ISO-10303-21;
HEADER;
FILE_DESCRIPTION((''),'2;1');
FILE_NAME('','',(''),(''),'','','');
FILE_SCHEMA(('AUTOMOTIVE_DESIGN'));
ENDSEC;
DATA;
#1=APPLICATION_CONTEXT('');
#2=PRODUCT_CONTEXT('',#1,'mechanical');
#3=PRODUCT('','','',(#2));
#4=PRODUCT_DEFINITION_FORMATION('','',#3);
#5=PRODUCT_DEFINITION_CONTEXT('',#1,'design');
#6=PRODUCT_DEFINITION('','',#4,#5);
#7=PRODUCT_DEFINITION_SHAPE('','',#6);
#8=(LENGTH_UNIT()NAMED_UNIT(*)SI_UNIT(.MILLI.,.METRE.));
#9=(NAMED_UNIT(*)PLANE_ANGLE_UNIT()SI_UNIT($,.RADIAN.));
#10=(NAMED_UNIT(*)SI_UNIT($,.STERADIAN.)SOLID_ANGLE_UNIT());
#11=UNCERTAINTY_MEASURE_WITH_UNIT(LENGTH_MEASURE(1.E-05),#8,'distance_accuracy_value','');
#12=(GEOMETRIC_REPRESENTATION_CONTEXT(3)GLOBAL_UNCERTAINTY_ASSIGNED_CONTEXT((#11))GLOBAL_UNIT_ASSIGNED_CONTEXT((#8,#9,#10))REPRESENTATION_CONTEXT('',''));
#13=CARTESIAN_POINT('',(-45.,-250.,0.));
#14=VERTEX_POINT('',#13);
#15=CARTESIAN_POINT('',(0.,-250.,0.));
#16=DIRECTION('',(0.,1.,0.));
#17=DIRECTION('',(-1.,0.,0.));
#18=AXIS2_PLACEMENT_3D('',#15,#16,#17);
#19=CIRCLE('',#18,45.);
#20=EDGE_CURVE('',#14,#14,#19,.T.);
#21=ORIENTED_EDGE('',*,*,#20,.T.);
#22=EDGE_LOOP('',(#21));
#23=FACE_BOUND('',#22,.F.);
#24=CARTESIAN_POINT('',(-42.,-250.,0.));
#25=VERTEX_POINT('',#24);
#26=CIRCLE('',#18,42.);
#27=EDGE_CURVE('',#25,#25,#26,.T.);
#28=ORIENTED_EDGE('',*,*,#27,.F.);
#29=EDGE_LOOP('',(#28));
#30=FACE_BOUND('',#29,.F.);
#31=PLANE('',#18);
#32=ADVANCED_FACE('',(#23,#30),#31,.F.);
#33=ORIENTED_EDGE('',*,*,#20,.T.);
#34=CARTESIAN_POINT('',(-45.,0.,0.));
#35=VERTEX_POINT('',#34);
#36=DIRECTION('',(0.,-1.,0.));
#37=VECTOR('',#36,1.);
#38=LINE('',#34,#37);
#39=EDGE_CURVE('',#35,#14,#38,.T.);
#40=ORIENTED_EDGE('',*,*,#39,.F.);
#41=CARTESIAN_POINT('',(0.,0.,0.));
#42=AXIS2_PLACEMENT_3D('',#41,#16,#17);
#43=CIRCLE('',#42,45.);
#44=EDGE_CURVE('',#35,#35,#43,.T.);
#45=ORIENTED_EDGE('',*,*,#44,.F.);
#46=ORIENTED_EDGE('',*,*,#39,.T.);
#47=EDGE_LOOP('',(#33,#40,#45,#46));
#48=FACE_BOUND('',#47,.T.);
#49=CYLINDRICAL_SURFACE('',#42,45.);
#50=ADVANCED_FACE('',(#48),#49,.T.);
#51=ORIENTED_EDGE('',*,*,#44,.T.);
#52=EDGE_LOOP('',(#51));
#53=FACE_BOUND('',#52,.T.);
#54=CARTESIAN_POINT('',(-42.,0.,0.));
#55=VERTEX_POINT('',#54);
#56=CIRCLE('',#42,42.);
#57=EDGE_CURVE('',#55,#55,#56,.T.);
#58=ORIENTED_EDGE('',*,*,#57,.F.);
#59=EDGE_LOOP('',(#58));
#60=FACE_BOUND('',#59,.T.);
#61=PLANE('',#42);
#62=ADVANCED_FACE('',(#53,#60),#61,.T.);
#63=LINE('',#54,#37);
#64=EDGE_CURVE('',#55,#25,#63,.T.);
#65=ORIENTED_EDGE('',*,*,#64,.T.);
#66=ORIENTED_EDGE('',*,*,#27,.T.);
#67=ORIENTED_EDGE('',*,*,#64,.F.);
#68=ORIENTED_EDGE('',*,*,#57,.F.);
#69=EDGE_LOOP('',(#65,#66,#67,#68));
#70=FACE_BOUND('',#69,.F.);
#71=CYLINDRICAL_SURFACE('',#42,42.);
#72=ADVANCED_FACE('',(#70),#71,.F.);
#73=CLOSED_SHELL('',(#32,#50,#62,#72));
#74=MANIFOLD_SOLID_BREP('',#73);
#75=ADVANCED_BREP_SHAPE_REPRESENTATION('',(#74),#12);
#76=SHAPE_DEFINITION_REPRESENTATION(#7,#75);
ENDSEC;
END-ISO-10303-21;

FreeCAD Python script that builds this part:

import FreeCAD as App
import Part
import Sketcher
from FreeCAD import Vector
Q = App.Units.Quantity

doc = App.newDocument("Part")
body = doc.addObject("PartDesign::Body", "Body")

# Sketch on XZ plane
sketch1 = body.newObject("Sketcher::SketchObject", "Sketch")
sketch1.AttachmentSupport = (doc.getObject("XZ_Plane"), [""])
sketch1.MapMode = "FlatFace"
sketch1.addGeometry([
    Part.Circle(Vector(0, 0, 0), Vector(0, 0, 1), 45),
    Part.Circle(Vector(0, 0, 0), Vector(0, 0, 1), 42),
], False)
sketch1.addConstraint([
    Sketcher.Constraint("Coincident", 0, 3, -1, 1),
    Sketcher.Constraint("Coincident", 1, 3, -1, 1),
    Sketcher.Constraint("Diameter", 0, Q("90 mm")),
    Sketcher.Constraint("Diameter", 1, Q("84 mm")),
])
pad1 = body.newObject("PartDesign::Pad", "Pad")
pad1.Profile = sketch1
pad1.Length = 250

doc.recompute()
